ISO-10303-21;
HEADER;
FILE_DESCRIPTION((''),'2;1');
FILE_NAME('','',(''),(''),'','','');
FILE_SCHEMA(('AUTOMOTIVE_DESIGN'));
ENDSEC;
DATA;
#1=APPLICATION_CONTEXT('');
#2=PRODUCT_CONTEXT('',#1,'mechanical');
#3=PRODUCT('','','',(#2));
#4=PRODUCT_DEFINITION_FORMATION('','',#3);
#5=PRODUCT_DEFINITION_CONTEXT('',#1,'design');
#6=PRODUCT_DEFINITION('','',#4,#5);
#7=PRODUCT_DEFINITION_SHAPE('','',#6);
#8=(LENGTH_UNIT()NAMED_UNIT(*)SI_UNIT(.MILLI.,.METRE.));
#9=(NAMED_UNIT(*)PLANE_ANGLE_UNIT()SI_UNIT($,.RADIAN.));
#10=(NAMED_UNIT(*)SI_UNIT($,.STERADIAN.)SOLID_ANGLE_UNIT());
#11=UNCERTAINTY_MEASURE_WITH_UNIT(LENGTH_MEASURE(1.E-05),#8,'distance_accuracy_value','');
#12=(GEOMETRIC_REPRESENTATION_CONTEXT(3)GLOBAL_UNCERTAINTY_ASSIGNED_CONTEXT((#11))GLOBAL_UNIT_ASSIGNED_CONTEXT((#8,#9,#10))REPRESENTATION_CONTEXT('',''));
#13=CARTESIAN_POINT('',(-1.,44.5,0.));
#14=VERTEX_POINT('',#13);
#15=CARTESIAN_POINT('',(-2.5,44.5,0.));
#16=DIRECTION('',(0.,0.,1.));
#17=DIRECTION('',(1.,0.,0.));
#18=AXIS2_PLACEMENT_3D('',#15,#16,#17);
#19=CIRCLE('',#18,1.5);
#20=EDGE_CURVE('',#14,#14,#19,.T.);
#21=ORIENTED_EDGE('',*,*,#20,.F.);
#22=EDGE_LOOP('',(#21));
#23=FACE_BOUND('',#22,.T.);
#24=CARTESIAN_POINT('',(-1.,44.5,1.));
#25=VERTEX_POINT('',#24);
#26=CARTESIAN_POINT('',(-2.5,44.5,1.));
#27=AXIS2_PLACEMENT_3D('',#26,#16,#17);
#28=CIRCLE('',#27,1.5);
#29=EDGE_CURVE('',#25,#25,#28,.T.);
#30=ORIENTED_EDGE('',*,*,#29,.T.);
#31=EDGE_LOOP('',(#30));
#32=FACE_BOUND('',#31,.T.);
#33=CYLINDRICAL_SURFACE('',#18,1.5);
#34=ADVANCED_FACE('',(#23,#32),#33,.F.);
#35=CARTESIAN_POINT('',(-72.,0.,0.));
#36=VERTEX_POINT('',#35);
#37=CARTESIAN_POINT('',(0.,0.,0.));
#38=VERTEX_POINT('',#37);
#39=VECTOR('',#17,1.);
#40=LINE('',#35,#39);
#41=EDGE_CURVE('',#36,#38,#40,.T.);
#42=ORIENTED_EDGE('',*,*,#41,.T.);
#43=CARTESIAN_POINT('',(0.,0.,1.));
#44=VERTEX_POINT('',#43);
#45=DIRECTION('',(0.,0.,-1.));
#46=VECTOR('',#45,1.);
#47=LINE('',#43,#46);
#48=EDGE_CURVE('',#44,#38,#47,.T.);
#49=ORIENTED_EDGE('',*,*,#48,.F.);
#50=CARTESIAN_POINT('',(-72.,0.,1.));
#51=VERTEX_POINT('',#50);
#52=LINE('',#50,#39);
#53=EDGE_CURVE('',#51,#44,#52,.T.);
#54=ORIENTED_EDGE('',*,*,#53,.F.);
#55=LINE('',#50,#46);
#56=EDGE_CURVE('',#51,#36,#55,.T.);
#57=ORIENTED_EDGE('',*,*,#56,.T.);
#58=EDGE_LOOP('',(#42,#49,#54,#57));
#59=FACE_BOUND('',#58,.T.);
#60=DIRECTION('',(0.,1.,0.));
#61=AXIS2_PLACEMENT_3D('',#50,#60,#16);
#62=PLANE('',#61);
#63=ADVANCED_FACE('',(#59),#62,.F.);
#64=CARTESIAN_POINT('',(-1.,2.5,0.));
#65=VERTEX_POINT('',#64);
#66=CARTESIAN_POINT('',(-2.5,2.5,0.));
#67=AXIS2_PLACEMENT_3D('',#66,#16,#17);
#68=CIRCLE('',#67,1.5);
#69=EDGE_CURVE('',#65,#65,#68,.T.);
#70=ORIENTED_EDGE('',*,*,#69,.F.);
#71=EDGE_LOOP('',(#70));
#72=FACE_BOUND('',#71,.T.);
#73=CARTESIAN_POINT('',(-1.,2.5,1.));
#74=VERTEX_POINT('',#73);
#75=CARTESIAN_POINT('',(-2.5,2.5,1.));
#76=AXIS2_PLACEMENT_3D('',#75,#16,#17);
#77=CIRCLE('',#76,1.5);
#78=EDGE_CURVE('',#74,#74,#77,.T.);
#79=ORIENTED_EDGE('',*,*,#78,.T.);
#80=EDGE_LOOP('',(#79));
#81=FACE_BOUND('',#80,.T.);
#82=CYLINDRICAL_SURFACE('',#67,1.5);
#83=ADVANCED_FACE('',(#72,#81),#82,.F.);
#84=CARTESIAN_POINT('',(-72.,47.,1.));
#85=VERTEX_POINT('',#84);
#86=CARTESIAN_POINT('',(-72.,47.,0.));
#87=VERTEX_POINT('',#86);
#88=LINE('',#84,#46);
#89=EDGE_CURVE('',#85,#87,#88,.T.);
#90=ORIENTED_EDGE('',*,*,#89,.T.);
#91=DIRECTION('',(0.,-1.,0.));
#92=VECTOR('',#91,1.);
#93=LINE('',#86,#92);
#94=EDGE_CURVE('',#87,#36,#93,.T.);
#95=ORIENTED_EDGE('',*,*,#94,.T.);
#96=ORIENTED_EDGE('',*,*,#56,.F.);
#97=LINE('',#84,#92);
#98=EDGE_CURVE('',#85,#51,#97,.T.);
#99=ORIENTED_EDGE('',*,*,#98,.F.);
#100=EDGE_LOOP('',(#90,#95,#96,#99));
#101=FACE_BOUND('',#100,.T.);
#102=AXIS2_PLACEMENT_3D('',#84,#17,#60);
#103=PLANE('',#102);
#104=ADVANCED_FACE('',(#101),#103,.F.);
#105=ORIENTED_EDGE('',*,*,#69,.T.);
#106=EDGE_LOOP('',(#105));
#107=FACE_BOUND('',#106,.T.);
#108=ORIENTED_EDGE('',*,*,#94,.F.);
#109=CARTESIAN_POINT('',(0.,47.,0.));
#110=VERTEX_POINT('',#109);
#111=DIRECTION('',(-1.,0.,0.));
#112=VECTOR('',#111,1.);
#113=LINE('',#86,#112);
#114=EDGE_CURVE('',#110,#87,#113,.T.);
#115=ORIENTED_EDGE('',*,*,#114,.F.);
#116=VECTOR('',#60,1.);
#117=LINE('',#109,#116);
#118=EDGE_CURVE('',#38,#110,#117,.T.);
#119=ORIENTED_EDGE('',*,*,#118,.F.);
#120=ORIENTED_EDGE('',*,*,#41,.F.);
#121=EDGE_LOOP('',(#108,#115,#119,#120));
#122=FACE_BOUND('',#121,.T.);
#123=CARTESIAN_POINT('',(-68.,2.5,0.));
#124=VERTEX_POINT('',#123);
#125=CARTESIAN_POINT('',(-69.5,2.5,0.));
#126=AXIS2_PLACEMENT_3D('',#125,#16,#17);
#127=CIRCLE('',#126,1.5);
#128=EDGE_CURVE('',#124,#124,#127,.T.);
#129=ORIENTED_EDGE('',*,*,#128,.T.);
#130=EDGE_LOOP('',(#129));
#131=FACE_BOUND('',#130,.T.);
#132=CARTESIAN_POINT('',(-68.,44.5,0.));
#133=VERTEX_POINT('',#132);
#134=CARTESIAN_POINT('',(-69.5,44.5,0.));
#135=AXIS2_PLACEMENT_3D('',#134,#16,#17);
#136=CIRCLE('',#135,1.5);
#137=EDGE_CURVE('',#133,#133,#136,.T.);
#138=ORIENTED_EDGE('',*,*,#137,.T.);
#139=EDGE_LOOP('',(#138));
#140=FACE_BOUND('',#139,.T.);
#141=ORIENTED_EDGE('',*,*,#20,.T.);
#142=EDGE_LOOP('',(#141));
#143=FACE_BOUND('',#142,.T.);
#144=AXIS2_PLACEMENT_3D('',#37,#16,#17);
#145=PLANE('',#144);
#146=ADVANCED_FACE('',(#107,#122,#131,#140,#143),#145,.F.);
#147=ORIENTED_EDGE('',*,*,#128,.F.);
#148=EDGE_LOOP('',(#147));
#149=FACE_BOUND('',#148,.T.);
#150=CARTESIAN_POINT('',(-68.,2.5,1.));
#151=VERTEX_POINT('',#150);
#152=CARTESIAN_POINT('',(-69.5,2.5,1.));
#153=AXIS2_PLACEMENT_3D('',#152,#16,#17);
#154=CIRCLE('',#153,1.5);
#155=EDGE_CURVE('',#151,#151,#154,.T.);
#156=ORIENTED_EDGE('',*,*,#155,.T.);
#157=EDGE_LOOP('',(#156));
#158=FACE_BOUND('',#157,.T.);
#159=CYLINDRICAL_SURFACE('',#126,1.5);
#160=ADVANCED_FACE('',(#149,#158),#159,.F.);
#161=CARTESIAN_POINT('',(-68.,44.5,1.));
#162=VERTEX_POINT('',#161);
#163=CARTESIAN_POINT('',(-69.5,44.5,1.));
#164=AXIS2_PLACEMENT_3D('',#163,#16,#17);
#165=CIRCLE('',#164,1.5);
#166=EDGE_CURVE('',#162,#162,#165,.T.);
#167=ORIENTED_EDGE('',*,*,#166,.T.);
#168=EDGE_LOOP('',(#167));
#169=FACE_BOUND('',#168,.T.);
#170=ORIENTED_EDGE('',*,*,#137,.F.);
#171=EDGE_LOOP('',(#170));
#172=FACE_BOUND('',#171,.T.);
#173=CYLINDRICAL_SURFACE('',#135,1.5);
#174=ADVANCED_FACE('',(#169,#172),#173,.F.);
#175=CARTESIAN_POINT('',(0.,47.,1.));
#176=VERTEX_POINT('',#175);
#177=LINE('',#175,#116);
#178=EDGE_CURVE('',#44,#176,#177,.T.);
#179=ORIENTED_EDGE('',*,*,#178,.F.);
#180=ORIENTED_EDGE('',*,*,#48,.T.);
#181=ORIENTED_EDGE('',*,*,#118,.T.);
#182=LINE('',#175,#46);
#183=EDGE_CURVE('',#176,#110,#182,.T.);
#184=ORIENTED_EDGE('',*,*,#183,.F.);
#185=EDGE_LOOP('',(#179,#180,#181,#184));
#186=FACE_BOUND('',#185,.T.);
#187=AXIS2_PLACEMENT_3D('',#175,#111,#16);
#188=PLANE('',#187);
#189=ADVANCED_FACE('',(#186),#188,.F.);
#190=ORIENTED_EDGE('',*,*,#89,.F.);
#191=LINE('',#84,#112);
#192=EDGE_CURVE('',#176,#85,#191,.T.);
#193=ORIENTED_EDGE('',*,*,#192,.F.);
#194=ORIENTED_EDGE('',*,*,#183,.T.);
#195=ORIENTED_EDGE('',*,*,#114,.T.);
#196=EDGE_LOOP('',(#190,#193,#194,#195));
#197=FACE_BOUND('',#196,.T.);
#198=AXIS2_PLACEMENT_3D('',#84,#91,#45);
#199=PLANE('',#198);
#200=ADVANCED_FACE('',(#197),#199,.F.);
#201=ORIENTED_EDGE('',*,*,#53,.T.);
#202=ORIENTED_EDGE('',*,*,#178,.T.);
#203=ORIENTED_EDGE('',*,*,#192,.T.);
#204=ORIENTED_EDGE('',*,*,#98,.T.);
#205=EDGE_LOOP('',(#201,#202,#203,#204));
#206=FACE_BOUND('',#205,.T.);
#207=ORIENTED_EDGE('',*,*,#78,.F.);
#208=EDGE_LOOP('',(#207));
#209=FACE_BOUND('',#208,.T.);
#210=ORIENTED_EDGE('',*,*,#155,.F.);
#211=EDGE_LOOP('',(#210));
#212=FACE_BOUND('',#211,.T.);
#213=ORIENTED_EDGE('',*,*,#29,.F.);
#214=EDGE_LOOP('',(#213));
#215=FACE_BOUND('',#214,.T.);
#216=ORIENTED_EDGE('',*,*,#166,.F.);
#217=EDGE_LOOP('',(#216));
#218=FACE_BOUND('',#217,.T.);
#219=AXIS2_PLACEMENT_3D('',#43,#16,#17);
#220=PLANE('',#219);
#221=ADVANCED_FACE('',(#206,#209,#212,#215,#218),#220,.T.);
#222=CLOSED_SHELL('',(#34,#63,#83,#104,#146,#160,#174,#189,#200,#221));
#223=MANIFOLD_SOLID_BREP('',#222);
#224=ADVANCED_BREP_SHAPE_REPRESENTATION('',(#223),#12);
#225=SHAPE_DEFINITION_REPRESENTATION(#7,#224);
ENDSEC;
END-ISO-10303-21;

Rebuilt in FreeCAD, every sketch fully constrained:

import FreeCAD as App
import Part
import Sketcher
Q = App.Units.Quantity


def add_polygon(sketch, points):
    """Adds a closed chain of lines whose ends are joined by coincident constraints."""
    first, n = sketch.GeometryCount, len(points)
    for a, b in zip(points, points[1:] + points[:1]):
        sketch.addGeometry(Part.LineSegment(App.Vector(*a, 0), App.Vector(*b, 0)), False)
    for i in range(n):
        sketch.addConstraint(Sketcher.Constraint("Coincident", first + i, 2, first + (i + 1) % n, 1))

doc = App.newDocument("Part")
body = doc.addObject("PartDesign::Body", "Body")

# Sketch on XY plane
sketch1 = body.newObject("Sketcher::SketchObject", "Sketch")
sketch1.AttachmentSupport = (doc.getObject("XY_Plane"), [""])
sketch1.MapMode = "FlatFace"
add_polygon(sketch1, [(-72, 47), (-72, 0), (0, 0), (0, 47)])  # lines 0-3
sketch1.addConstraint([
    Sketcher.Constraint("Vertical", 0),
    Sketcher.Constraint("Horizontal", 1),
    Sketcher.Constraint("Vertical", 2),
    Sketcher.Constraint("Horizontal", 3),
    Sketcher.Constraint("Coincident", 1, 2, -1, 1),
    Sketcher.Constraint("DistanceX", 1, 1, 1, 2, Q("72 mm")),
    Sketcher.Constraint("DistanceY", 0, 2, 0, 1, Q("47 mm")),
])
pad1 = body.newObject("PartDesign::Pad", "Pad")
pad1.Profile = sketch1
pad1.Length = 1

# Sketch on XY plane
sketch2 = body.newObject("Sketcher::SketchObject", "Sketch001")
sketch2.AttachmentSupport = (doc.getObject("XY_Plane"), [""])
sketch2.MapMode = "FlatFace"
sketch2.AttachmentOffset = App.Placement(App.Vector(0, 0, 1), App.Rotation())
sketch2.addGeometry([
    Part.Circle(App.Vector(-69.5, 44.5, 0), App.Vector(0, 0, 1), 1.5),
    Part.Circle(App.Vector(-69.5, 2.5, 0), App.Vector(0, 0, 1), 1.5),
    Part.Circle(App.Vector(-2.5, 44.5, 0), App.Vector(0, 0, 1), 1.5),
    Part.Circle(App.Vector(-2.5, 2.5, 0), App.Vector(0, 0, 1), 1.5),
], False)
sketch2.addConstraint([
    Sketcher.Constraint("Equal", 0, 1),
    Sketcher.Constraint("Equal", 1, 2),
    Sketcher.Constraint("Equal", 2, 3),
    Sketcher.Constraint("Horizontal", 0, 3, 2, 3),
    Sketcher.Constraint("Horizontal", 1, 3, 3, 3),
    Sketcher.Constraint("Vertical", 0, 3, 1, 3),
    Sketcher.Constraint("Vertical", 2, 3, 3, 3),
    Sketcher.Constraint("Diameter", 0, Q("3 mm")),
    Sketcher.Constraint("DistanceY", 1, 3, 0, 3, Q("42 mm")),
    Sketcher.Constraint("DistanceX", 0, 3, 2, 3, Q("67 mm")),
    Sketcher.Constraint("DistanceX", 0, 3, -1, 1, Q("69.5 mm")),
    Sketcher.Constraint("DistanceY", -1, 1, 0, 3, Q("44.5 mm")),
])
pocket1 = body.newObject("PartDesign::Pocket", "Pocket")
pocket1.Profile = sketch2
pocket1.Type = "ThroughAll"

doc.recompute()
